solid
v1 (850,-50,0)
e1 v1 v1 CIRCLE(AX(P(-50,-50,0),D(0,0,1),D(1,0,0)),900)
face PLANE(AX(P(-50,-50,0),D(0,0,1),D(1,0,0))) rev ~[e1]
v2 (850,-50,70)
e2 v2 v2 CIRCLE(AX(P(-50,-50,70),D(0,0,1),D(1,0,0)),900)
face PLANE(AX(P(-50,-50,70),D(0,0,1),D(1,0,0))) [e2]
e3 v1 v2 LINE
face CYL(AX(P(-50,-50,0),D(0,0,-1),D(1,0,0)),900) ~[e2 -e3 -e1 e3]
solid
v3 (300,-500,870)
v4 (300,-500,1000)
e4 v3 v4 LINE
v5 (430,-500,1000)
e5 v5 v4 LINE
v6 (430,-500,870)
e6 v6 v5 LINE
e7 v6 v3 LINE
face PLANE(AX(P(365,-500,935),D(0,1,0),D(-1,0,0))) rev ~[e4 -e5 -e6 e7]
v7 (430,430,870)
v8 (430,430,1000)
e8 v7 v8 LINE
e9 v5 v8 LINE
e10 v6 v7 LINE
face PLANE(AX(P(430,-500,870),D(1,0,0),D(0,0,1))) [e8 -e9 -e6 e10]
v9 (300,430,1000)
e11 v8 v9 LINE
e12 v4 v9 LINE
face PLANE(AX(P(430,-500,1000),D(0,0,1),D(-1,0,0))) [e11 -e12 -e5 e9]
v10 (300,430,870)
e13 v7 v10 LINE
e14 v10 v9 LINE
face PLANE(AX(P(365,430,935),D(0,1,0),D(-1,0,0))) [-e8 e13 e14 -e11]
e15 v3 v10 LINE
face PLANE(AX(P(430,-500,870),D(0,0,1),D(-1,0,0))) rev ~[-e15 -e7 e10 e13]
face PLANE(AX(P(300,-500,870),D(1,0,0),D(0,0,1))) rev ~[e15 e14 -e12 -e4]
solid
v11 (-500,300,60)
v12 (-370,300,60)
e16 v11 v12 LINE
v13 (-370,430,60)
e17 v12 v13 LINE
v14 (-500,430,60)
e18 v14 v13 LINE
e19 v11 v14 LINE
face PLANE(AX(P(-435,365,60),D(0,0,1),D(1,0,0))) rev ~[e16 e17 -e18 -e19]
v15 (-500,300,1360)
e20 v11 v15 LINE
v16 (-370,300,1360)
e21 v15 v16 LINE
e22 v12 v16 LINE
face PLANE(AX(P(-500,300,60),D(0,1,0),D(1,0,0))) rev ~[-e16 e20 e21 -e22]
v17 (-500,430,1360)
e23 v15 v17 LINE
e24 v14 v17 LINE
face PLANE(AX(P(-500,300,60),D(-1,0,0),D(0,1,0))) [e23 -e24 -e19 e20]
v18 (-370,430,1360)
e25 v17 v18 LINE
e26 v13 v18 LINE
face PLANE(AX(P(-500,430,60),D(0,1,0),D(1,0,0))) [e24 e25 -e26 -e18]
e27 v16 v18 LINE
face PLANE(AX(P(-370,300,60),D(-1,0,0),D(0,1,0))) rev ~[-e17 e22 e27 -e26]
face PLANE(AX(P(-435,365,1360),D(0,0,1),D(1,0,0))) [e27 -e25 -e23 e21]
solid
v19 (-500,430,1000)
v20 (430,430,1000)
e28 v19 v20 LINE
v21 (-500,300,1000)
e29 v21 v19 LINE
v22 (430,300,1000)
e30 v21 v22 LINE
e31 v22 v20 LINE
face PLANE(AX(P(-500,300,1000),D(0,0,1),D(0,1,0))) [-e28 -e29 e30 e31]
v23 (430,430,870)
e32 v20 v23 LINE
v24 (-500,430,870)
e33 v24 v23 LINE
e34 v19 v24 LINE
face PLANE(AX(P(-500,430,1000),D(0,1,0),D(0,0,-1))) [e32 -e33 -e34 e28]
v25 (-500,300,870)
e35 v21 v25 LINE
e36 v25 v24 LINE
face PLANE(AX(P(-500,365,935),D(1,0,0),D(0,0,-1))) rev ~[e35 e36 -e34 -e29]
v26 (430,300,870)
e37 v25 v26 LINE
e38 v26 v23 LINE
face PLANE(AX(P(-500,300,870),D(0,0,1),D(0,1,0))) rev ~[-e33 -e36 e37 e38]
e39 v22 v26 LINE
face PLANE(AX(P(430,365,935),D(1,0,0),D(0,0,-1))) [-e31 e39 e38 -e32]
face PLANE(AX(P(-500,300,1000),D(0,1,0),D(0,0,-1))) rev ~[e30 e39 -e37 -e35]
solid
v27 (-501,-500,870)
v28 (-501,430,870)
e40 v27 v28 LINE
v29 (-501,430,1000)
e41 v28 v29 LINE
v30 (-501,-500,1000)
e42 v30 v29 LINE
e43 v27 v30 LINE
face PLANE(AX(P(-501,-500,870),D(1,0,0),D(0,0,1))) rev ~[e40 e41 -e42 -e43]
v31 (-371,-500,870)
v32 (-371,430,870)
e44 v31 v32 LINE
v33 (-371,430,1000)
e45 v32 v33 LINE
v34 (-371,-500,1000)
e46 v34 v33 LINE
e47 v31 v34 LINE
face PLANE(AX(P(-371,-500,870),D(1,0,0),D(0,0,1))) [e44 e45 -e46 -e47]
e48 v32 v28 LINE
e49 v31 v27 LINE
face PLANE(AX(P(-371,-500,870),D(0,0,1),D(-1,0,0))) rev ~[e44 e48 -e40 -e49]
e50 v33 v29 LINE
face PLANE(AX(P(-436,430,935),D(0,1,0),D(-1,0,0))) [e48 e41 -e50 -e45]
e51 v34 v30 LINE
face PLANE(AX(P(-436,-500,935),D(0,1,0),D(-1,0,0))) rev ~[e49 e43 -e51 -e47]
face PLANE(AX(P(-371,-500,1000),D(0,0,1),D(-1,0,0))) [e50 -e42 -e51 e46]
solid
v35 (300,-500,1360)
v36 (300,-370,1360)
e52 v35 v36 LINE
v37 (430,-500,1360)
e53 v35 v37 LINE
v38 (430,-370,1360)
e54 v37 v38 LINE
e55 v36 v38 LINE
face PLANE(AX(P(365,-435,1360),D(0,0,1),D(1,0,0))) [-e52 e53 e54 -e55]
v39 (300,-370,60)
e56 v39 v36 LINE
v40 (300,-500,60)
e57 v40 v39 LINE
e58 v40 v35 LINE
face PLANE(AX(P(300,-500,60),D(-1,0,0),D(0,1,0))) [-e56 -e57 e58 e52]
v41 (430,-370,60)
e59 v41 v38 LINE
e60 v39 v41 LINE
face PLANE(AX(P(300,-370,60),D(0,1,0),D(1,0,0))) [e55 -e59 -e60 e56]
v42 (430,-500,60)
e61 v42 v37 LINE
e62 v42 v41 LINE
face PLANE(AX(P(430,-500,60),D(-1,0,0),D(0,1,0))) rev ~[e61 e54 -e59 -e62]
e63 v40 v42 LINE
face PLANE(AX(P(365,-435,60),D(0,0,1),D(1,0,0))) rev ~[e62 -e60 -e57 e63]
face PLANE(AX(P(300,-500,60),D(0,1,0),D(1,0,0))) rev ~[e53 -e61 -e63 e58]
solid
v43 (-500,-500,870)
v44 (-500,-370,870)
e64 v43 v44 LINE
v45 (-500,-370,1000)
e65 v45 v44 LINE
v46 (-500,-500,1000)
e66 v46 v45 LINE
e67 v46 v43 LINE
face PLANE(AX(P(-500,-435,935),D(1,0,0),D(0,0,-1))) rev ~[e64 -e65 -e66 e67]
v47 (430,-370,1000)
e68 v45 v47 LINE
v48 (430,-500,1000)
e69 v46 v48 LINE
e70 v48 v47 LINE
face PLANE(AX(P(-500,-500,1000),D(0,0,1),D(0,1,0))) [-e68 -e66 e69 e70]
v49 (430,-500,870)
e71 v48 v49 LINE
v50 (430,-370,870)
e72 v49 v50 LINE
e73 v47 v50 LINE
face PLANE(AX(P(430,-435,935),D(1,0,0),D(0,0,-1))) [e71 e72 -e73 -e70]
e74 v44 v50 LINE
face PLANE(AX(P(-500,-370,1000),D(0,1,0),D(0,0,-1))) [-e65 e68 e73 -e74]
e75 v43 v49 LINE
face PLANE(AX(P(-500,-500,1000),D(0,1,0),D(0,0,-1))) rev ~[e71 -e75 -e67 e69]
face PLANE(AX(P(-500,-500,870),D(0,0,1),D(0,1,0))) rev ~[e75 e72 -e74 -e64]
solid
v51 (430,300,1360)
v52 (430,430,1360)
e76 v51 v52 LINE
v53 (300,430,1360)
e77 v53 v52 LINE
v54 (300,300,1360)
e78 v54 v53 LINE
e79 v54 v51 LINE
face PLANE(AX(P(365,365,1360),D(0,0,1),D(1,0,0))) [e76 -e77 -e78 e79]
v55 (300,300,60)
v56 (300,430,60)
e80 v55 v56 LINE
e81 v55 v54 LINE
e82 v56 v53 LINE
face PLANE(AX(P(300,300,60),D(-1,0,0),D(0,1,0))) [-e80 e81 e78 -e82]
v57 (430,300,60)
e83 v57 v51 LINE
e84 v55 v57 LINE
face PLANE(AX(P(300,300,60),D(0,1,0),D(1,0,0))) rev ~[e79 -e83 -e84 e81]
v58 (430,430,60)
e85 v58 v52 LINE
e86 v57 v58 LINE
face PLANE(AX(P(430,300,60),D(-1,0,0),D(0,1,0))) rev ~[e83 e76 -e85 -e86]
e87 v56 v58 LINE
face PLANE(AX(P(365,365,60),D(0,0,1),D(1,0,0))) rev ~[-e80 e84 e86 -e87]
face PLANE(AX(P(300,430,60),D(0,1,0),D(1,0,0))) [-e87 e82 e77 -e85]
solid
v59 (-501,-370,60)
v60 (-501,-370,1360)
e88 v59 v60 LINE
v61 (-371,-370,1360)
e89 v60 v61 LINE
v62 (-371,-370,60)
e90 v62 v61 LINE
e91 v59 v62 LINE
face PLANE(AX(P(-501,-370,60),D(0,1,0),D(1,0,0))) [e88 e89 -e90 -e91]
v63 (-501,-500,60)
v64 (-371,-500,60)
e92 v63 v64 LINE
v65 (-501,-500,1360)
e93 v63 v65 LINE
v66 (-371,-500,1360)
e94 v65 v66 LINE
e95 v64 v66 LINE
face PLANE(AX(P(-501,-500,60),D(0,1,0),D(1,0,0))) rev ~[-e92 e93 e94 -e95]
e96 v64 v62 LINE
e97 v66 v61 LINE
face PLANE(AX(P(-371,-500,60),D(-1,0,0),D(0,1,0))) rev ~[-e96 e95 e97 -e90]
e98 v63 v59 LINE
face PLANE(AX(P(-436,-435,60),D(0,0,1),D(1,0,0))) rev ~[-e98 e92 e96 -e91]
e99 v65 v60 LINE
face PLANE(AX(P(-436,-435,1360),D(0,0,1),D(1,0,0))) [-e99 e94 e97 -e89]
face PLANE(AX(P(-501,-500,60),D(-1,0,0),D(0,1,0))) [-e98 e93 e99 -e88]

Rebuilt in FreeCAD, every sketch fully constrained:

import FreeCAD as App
import Part
import Sketcher

doc = App.newDocument("Part")
body = doc.addObject("PartDesign::Body", "Body")

sketch1 = body.newObject("Sketcher::SketchObject", "Sketch")
sketch1.AttachmentSupport = (doc.getObject("XY_Plane"), [""])
sketch1.MapMode = "FlatFace"
sketch1.addGeometry(Part.Circle(App.Vector(-50, -50, 0), App.Vector(0, 0, 1), 900), False)
sketch1.addConstraint([
    Sketcher.Constraint("Diameter", 0, 1800.0),
    Sketcher.Constraint("DistanceX", 0, 3, -1, 1, 50.0),
    Sketcher.Constraint("DistanceY", 0, 3, -1, 1, 50.0),
])
pad1 = body.newObject("PartDesign::Pad", "Pad")
pad1.Profile = sketch1
pad1.Length = 70
body2 = doc.addObject("PartDesign::Body", "Body001")

sketch2 = body2.newObject("Sketcher::SketchObject", "Sketch001")
sketch2.AttachmentSupport = (doc.getObject("XY_Plane001"), [""])
sketch2.MapMode = "FlatFace"
sketch2.AttachmentOffset = App.Placement(App.Vector(0, 0, 60), App.Rotation())
sketch2.addGeometry([
    Part.LineSegment(App.Vector(-501, -370, 0), App.Vector(-501, -500, 0)),
    Part.LineSegment(App.Vector(-501, -500, 0), App.Vector(-371, -500, 0)),
    Part.LineSegment(App.Vector(-371, -500, 0), App.Vector(-371, -370, 0)),
    Part.LineSegment(App.Vector(-371, -370, 0), App.Vector(-501, -370, 0)),
], False)
sketch2.addConstraint([
    Sketcher.Constraint("Coincident", 0, 2, 1, 1),
    Sketcher.Constraint("Coincident", 1, 2, 2, 1),
    Sketcher.Constraint("Coincident", 2, 2, 3, 1),
    Sketcher.Constraint("Coincident", 3, 2, 0, 1),
    Sketcher.Constraint("Vertical", 0),
    Sketcher.Constraint("Horizontal", 1),
    Sketcher.Constraint("Vertical", 2),
    Sketcher.Constraint("Horizontal", 3),
    Sketcher.Constraint("Equal", 3, 0),
    Sketcher.Constraint("DistanceX", 1, 1, 1, 2, 130.0),
    Sketcher.Constraint("DistanceX", 0, 2, -1, 1, 501.0),
    Sketcher.Constraint("DistanceY", 0, 2, -1, 1, 500.0),
])
pad2 = body2.newObject("PartDesign::Pad", "Pad001")
pad2.Profile = sketch2
pad2.Length = 1300
body3 = doc.addObject("PartDesign::Body", "Body002")

sketch3 = body3.newObject("Sketcher::SketchObject", "Sketch002")
sketch3.AttachmentSupport = (doc.getObject("XY_Plane002"), [""])
sketch3.MapMode = "FlatFace"
sketch3.AttachmentOffset = App.Placement(App.Vector(0, 0, 60), App.Rotation())
sketch3.addGeometry([
    Part.LineSegment(App.Vector(300, -370, 0), App.Vector(300, -500, 0)),
    Part.LineSegment(App.Vector(300, -500, 0), App.Vector(430, -500, 0)),
    Part.LineSegment(App.Vector(430, -500, 0), App.Vector(430, -370, 0)),
    Part.LineSegment(App.Vector(430, -370, 0), App.Vector(300, -370, 0)),
], False)
sketch3.addConstraint([
    Sketcher.Constraint("Coincident", 0, 2, 1, 1),
    Sketcher.Constraint("Coincident", 1, 2, 2, 1),
    Sketcher.Constraint("Coincident", 2, 2, 3, 1),
    Sketcher.Constraint("Coincident", 3, 2, 0, 1),
    Sketcher.Constraint("Vertical", 0),
    Sketcher.Constraint("Horizontal", 1),
    Sketcher.Constraint("Vertical", 2),
    Sketcher.Constraint("Horizontal", 3),
    Sketcher.Constraint("Equal", 3, 0),
    Sketcher.Constraint("DistanceX", 1, 1, 1, 2, 130.0),
    Sketcher.Constraint("DistanceX", -1, 1, 0, 2, 300.0),
    Sketcher.Constraint("DistanceY", 0, 2, -1, 1, 500.0),
])
pad3 = body3.newObject("PartDesign::Pad", "Pad002")
pad3.Profile = sketch3
pad3.Length = 1300
body4 = doc.addObject("PartDesign::Body", "Body003")

sketch4 = body4.newObject("Sketcher::SketchObject", "Sketch003")
sketch4.AttachmentSupport = (doc.getObject("XY_Plane003"), [""])
sketch4.MapMode = "FlatFace"
sketch4.AttachmentOffset = App.Placement(App.Vector(0, 0, 60), App.Rotation())
sketch4.addGeometry([
    Part.LineSegment(App.Vector(300, 430, 0), App.Vector(300, 300, 0)),
    Part.LineSegment(App.Vector(300, 300, 0), App.Vector(430, 300, 0)),
    Part.LineSegment(App.Vector(430, 300, 0), App.Vector(430, 430, 0)),
    Part.LineSegment(App.Vector(430, 430, 0), App.Vector(300, 430, 0)),
], False)
sketch4.addConstraint([
    Sketcher.Constraint("Coincident", 0, 2, 1, 1),
    Sketcher.Constraint("Coincident", 1, 2, 2, 1),
    Sketcher.Constraint("Coincident", 2, 2, 3, 1),
    Sketcher.Constraint("Coincident", 3, 2, 0, 1),
    Sketcher.Constraint("Vertical", 0),
    Sketcher.Constraint("Horizontal", 1),
    Sketcher.Constraint("Vertical", 2),
    Sketcher.Constraint("Horizontal", 3),
    Sketcher.Constraint("Equal", 3, 0),
    Sketcher.Constraint("DistanceX", 1, 1, 1, 2, 130.0),
    Sketcher.Constraint("DistanceX", -1, 1, 0, 2, 300.0),
    Sketcher.Constraint("DistanceY", -1, 1, 0, 2, 300.0),
])
pad4 = body4.newObject("PartDesign::Pad", "Pad003")
pad4.Profile = sketch4
pad4.Length = 1300
body5 = doc.addObject("PartDesign::Body", "Body004")

sketch5 = body5.newObject("Sketcher::SketchObject", "Sketch004")
sketch5.AttachmentSupport = (doc.getObject("XY_Plane004"), [""])
sketch5.MapMode = "FlatFace"
sketch5.AttachmentOffset = App.Placement(App.Vector(0, 0, 60), App.Rotation())
sketch5.addGeometry([
    Part.LineSegment(App.Vector(-500, 430, 0), App.Vector(-500, 300, 0)),
    Part.LineSegment(App.Vector(-500, 300, 0), App.Vector(-370, 300, 0)),
    Part.LineSegment(App.Vector(-370, 300, 0), App.Vector(-370, 430, 0)),
    Part.LineSegment(App.Vector(-370, 430, 0), App.Vector(-500, 430, 0)),
], False)
sketch5.addConstraint([
    Sketcher.Constraint("Coincident", 0, 2, 1, 1),
    Sketcher.Constraint("Coincident", 1, 2, 2, 1),
    Sketcher.Constraint("Coincident", 2, 2, 3, 1),
    Sketcher.Constraint("Coincident", 3, 2, 0, 1),
    Sketcher.Constraint("Vertical", 0),
    Sketcher.Constraint("Horizontal", 1),
    Sketcher.Constraint("Vertical", 2),
    Sketcher.Constraint("Horizontal", 3),
    Sketcher.Constraint("Equal", 3, 0),
    Sketcher.Constraint("DistanceX", 1, 1, 1, 2, 130.0),
    Sketcher.Constraint("DistanceX", 0, 2, -1, 1, 500.0),
    Sketcher.Constraint("DistanceY", -1, 1, 0, 2, 300.0),
])
pad5 = body5.newObject("PartDesign::Pad", "Pad004")
pad5.Profile = sketch5
pad5.Length = 1300
body6 = doc.addObject("PartDesign::Body", "Body005")

sketch6 = body6.newObject("Sketcher::SketchObject", "Sketch005")
sketch6.AttachmentSupport = (doc.getObject("YZ_Plane005"), [""])
sketch6.MapMode = "FlatFace"
sketch6.AttachmentOffset = App.Placement(App.Vector(0, 0, -500), App.Rotation())
sketch6.addGeometry([
    Part.LineSegment(App.Vector(430, 1000, 0), App.Vector(300, 1000, 0)),
    Part.LineSegment(App.Vector(300, 1000, 0), App.Vector(300, 870, 0)),
    Part.LineSegment(App.Vector(300, 870, 0), App.Vector(430, 870, 0)),
    Part.LineSegment(App.Vector(430, 870, 0), App.Vector(430, 1000, 0)),
], False)
sketch6.addConstraint([
    Sketcher.Constraint("Coincident", 0, 2, 1, 1),
    Sketcher.Constraint("Coincident", 1, 2, 2, 1),
    Sketcher.Constraint("Coincident", 2, 2, 3, 1),
    Sketcher.Constraint("Coincident", 3, 2, 0, 1),
    Sketcher.Constraint("Horizontal", 0),
    Sketcher.Constraint("Vertical", 1),
    Sketcher.Constraint("Horizontal", 2),
    Sketcher.Constraint("Vertical", 3),
    Sketcher.Constraint("Equal", 2, 1),
    Sketcher.Constraint("DistanceX", 0, 2, 0, 1, 130.0),
    Sketcher.Constraint("DistanceX", -1, 1, 0, 2, 300.0),
    Sketcher.Constraint("DistanceY", -1, 1, 0, 2, 1000.0),
])
pad6 = body6.newObject("PartDesign::Pad", "Pad005")
pad6.Profile = sketch6
pad6.Length = 930
body7 = doc.addObject("PartDesign::Body", "Body006")

sketch7 = body7.newObject("Sketcher::SketchObject", "Sketch006")
sketch7.AttachmentSupport = (doc.getObject("YZ_Plane006"), [""])
sketch7.MapMode = "FlatFace"
sketch7.AttachmentOffset = App.Placement(App.Vector(0, 0, -500), App.Rotation())
sketch7.addGeometry([
    Part.LineSegment(App.Vector(-370, 1000, 0), App.Vector(-500, 1000, 0)),
    Part.LineSegment(App.Vector(-500, 1000, 0), App.Vector(-500, 870, 0)),
    Part.LineSegment(App.Vector(-500, 870, 0), App.Vector(-370, 870, 0)),
    Part.LineSegment(App.Vector(-370, 870, 0), App.Vector(-370, 1000, 0)),
], False)
sketch7.addConstraint([
    Sketcher.Constraint("Coincident", 0, 2, 1, 1),
    Sketcher.Constraint("Coincident", 1, 2, 2, 1),
    Sketcher.Constraint("Coincident", 2, 2, 3, 1),
    Sketcher.Constraint("Coincident", 3, 2, 0, 1),
    Sketcher.Constraint("Horizontal", 0),
    Sketcher.Constraint("Vertical", 1),
    Sketcher.Constraint("Horizontal", 2),
    Sketcher.Constraint("Vertical", 3),
    Sketcher.Constraint("Equal", 2, 1),
    Sketcher.Constraint("DistanceX", 0, 2, 0, 1, 130.0),
    Sketcher.Constraint("DistanceX", 0, 2, -1, 1, 500.0),
    Sketcher.Constraint("DistanceY", -1, 1, 0, 2, 1000.0),
])
pad7 = body7.newObject("PartDesign::Pad", "Pad006")
pad7.Profile = sketch7
pad7.Length = 930
body8 = doc.addObject("PartDesign::Body", "Body007")

sketch8 = body8.newObject("Sketcher::SketchObject", "Sketch007")
sketch8.AttachmentSupport = (doc.getObject("XZ_Plane007"), [""])
sketch8.MapMode = "FlatFace"
sketch8.AttachmentOffset = App.Placement(App.Vector(0, 0, 500), App.Rotation())
sketch8.addGeometry([
    Part.LineSegment(App.Vector(-371, 1000, 0), App.Vector(-371, 870, 0)),
    Part.LineSegment(App.Vector(-371, 870, 0), App.Vector(-501, 870, 0)),
    Part.LineSegment(App.Vector(-501, 870, 0), App.Vector(-501, 1000, 0)),
    Part.LineSegment(App.Vector(-501, 1000, 0), App.Vector(-371, 1000, 0)),
], False)
sketch8.addConstraint([
    Sketcher.Constraint("Coincident", 0, 2, 1, 1),
    Sketcher.Constraint("Coincident", 1, 2, 2, 1),
    Sketcher.Constraint("Coincident", 2, 2, 3, 1),
    Sketcher.Constraint("Coincident", 3, 2, 0, 1),
    Sketcher.Constraint("Vertical", 0),
    Sketcher.Constraint("Horizontal", 1),
    Sketcher.Constraint("Vertical", 2),
    Sketcher.Constraint("Horizontal", 3),
    Sketcher.Constraint("Equal", 3, 0),
    Sketcher.Constraint("DistanceX", 1, 2, 1, 1, 130.0),
    Sketcher.Constraint("DistanceX", 0, 2, -1, 1, 371.0),
    Sketcher.Constraint("DistanceY", -1, 1, 0, 2, 870.0),
])
pad8 = body8.newObject("PartDesign::Pad", "Pad007")
pad8.Profile = sketch8
pad8.Length = 930
pad8.Reversed = True
body9 = doc.addObject("PartDesign::Body", "Body008")

sketch9 = body9.newObject("Sketcher::SketchObject", "Sketch008")
sketch9.AttachmentSupport = (doc.getObject("XZ_Plane008"), [""])
sketch9.MapMode = "FlatFace"
sketch9.AttachmentOffset = App.Placement(App.Vector(0, 0, 500), App.Rotation())
sketch9.addGeometry([
    Part.LineSegment(App.Vector(430, 1000, 0), App.Vector(430, 870, 0)),
    Part.LineSegment(App.Vector(430, 870, 0), App.Vector(300, 870, 0)),
    Part.LineSegment(App.Vector(300, 870, 0), App.Vector(300, 1000, 0)),
    Part.LineSegment(App.Vector(300, 1000, 0), App.Vector(430, 1000, 0)),
], False)
sketch9.addConstraint([
    Sketcher.Constraint("Coincident", 0, 2, 1, 1),
    Sketcher.Constraint("Coincident", 1, 2, 2, 1),
    Sketcher.Constraint("Coincident", 2, 2, 3, 1),
    Sketcher.Constraint("Coincident", 3, 2, 0, 1),
    Sketcher.Constraint("Vertical", 0),
    Sketcher.Constraint("Horizontal", 1),
    Sketcher.Constraint("Vertical", 2),
    Sketcher.Constraint("Horizontal", 3),
    Sketcher.Constraint("Equal", 3, 0),
    Sketcher.Constraint("DistanceX", 1, 2, 1, 1, 130.0),
    Sketcher.Constraint("DistanceX", -1, 1, 0, 2, 430.0),
    Sketcher.Constraint("DistanceY", -1, 1, 0, 2, 870.0),
])
pad9 = body9.newObject("PartDesign::Pad", "Pad008")
pad9.Profile = sketch9
pad9.Length = 930
pad9.Reversed = True

doc.recompute()
